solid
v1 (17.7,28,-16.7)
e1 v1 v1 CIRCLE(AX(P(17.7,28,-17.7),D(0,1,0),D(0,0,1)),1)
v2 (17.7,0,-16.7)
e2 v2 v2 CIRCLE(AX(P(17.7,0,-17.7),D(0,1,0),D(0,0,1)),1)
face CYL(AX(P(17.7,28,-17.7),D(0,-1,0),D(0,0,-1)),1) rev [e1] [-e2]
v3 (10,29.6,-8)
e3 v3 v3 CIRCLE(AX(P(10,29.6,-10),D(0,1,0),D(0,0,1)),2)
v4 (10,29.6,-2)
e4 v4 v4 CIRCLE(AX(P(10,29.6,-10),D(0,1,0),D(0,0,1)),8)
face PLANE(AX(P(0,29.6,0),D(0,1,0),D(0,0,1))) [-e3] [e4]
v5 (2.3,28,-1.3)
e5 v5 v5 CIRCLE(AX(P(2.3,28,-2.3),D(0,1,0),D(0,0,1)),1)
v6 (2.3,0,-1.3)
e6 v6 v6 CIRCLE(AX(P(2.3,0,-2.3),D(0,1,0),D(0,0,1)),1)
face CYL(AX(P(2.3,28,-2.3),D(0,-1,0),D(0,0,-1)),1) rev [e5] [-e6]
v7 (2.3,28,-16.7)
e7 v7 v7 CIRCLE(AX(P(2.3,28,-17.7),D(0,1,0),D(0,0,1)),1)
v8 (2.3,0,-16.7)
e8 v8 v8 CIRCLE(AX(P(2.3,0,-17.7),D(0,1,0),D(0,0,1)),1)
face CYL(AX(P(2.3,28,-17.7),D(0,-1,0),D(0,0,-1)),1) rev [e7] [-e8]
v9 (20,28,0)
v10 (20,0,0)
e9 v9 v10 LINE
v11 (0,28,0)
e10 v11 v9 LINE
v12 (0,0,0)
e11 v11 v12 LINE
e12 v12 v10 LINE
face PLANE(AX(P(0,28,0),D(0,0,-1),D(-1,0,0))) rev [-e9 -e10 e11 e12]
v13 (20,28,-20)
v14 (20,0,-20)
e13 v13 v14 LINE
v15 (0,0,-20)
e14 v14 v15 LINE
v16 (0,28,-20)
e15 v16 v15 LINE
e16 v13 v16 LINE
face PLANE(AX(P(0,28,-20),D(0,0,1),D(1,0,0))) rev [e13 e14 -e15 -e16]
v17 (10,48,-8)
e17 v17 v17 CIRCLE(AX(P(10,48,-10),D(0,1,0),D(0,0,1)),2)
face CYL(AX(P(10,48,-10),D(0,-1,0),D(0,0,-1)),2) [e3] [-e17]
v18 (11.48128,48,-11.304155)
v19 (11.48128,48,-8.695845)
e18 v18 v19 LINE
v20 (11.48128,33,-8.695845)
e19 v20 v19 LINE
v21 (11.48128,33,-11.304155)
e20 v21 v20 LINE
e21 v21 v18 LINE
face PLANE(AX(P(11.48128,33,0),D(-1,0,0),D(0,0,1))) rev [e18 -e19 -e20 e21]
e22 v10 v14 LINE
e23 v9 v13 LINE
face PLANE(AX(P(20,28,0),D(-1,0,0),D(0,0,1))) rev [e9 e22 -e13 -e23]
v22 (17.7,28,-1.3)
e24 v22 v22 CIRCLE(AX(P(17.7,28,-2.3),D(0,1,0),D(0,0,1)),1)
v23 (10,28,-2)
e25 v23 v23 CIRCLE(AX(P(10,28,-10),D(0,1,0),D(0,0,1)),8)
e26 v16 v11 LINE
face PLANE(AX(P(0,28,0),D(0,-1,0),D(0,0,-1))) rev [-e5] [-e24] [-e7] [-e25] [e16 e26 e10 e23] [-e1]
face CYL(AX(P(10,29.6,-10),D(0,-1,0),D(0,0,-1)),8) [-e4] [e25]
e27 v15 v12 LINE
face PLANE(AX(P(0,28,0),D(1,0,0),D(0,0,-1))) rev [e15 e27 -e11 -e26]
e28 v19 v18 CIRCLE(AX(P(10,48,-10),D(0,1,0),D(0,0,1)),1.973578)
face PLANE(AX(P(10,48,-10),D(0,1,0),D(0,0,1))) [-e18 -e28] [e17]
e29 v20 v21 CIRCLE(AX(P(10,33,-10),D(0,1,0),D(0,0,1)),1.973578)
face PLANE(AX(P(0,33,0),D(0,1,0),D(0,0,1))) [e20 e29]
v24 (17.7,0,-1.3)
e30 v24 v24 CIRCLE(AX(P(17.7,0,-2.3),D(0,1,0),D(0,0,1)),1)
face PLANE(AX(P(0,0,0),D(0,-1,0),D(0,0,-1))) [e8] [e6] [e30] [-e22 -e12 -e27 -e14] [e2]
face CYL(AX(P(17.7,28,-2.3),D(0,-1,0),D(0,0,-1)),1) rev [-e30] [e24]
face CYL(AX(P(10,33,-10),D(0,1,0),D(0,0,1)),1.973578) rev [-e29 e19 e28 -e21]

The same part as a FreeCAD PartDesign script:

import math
import FreeCAD as App
import Part
import Sketcher

V = App.Vector


def add_polygon(sketch, points):
    """Adds a closed chain of lines whose ends are joined by coincident constraints."""
    first, n = sketch.GeometryCount, len(points)
    for a, b in zip(points, points[1:] + points[:1]):
        sketch.addGeometry(Part.LineSegment(App.Vector(*a, 0), App.Vector(*b, 0)), False)
    for i in range(n):
        sketch.addConstraint(Sketcher.Constraint("Coincident", first + i, 2, first + (i + 1) % n, 1))

doc = App.newDocument("Part")
body = doc.addObject("PartDesign::Body", "Body")

# Sketch on XZ plane
sketch1 = body.newObject("Sketcher::SketchObject", "Sketch")
sketch1.AttachmentSupport = (doc.getObject("XZ_Plane"), [""])
sketch1.MapMode = "FlatFace"
add_polygon(sketch1, [(0, -20), (0, 0), (20, 0), (20, -20)])  # lines 0-3
sketch1.addGeometry(Part.Circle(V(2.3, -2.3, 0), V(0, 0, 1), 1), False)  # 4
sketch1.addGeometry(Part.Circle(V(17.7, -2.3, 0), V(0, 0, 1), 1), False)  # 5
sketch1.addGeometry(Part.Circle(V(2.3, -17.7, 0), V(0, 0, 1), 1), False)  # 6
sketch1.addGeometry(Part.Circle(V(17.7, -17.7, 0), V(0, 0, 1), 1), False)  # 7
sketch1.addConstraint([
    Sketcher.Constraint("Vertical", 0),
    Sketcher.Constraint("Horizontal", 1),
    Sketcher.Constraint("Vertical", 2),
    Sketcher.Constraint("Horizontal", 3),
    Sketcher.Constraint("Coincident", 0, 2, -1, 1),
    Sketcher.Constraint("Equal", 4, 5),
    Sketcher.Constraint("Equal", 5, 6),
    Sketcher.Constraint("Equal", 6, 7),
    Sketcher.Constraint("Horizontal", 4, 3, 5, 3),
    Sketcher.Constraint("Horizontal", 6, 3, 7, 3),
    Sketcher.Constraint("Vertical", 4, 3, 6, 3),
    Sketcher.Constraint("Vertical", 5, 3, 7, 3),
    Sketcher.Constraint("Equal", 3, 0),
    Sketcher.Constraint("Diameter", 4, 2.0),
    Sketcher.Constraint("DistanceX", 1, 1, 1, 2, 20.0),
    Sketcher.Constraint("DistanceX", -1, 1, 4, 3, 2.3),
    Sketcher.Constraint("DistanceY", 4, 3, -1, 1, 2.3),
    Sketcher.Constraint("DistanceX", -1, 1, 5, 3, 17.7),
    Sketcher.Constraint("DistanceY", 6, 3, -1, 1, 17.7),
])
pad1 = body.newObject("PartDesign::Pad", "Pad")
pad1.Profile = sketch1
pad1.Length = 28
pad1.Reversed = True

# Sketch on XZ plane
sketch2 = body.newObject("Sketcher::SketchObject", "Sketch001")
sketch2.AttachmentSupport = (doc.getObject("XZ_Plane"), [""])
sketch2.MapMode = "FlatFace"
sketch2.AttachmentOffset = App.Placement(V(0, 0, -28), App.Rotation())
sketch2.addGeometry(Part.Circle(V(10, -10, 0), V(0, 0, 1), 8), False)
sketch2.addConstraint([
    Sketcher.Constraint("Diameter", 0, 16.0),
    Sketcher.Constraint("DistanceX", -1, 1, 0, 3, 10.0),
    Sketcher.Constraint("DistanceY", 0, 3, -1, 1, 10.0),
])
pad2 = body.newObject("PartDesign::Pad", "Pad001")
pad2.Profile = sketch2
pad2.Length = 1.6
pad2.Reversed = True

# Sketch on XZ plane
sketch3 = body.newObject("Sketcher::SketchObject", "Sketch002")
sketch3.AttachmentSupport = (doc.getObject("XZ_Plane"), [""])
sketch3.MapMode = "FlatFace"
sketch3.AttachmentOffset = App.Placement(V(0, 0, -29.6), App.Rotation())
sketch3.addGeometry(Part.Circle(V(10, -10, 0), V(0, 0, 1), 2), False)
sketch3.addConstraint([
    Sketcher.Constraint("Diameter", 0, 4.0),
    Sketcher.Constraint("DistanceX", -1, 1, 0, 3, 10.0),
    Sketcher.Constraint("DistanceY", 0, 3, -1, 1, 10.0),
])
pad3 = body.newObject("PartDesign::Pad", "Pad002")
pad3.Profile = sketch3
pad3.Length = 18.4
pad3.Reversed = True

# Sketch on XZ plane
sketch4 = body.newObject("Sketcher::SketchObject", "Sketch003")
sketch4.AttachmentSupport = (doc.getObject("XZ_Plane"), [""])
sketch4.MapMode = "FlatFace"
sketch4.AttachmentOffset = App.Placement(V(0, 0, -48), App.Rotation())
sketch4.addGeometry([
    Part.LineSegment(V(11.5, -11.3, 0), V(11.5, -8.7, 0)),
    Part.ArcOfCircle(Part.Circle(V(10, -10, 0), V(0, 0, 1), 2), math.radians(0), math.radians(41)),
    Part.ArcOfCircle(Part.Circle(V(10, -10, 0), V(0, 0, 1), 2), math.radians(-41), math.radians(0)),
], False)
sketch4.addConstraint([
    Sketcher.Constraint("Coincident", 0, 2, 1, 2),
    Sketcher.Constraint("Tangent", 1, 1, 2, 2),
    Sketcher.Constraint("Coincident", 2, 1, 0, 1),
    Sketcher.Constraint("Vertical", 0),
    Sketcher.Constraint("Equal", 1, 2),
    Sketcher.Constraint("Horizontal", 2, 3, 1, 1),
    Sketcher.Constraint("DistanceX", -1, 1, 1, 3, 10.0),
    Sketcher.Constraint("DistanceY", 1, 3, -1, 1, 10.0),
    Sketcher.Constraint("Radius", 1, 1.973578),
    Sketcher.Constraint("DistanceY", 0, 1, 0, 2, 2.608311),
])
pocket1 = body.newObject("PartDesign::Pocket", "Pocket")
pocket1.Profile = sketch4
pocket1.Length = 15
pocket1.Reversed = True

doc.recompute()
